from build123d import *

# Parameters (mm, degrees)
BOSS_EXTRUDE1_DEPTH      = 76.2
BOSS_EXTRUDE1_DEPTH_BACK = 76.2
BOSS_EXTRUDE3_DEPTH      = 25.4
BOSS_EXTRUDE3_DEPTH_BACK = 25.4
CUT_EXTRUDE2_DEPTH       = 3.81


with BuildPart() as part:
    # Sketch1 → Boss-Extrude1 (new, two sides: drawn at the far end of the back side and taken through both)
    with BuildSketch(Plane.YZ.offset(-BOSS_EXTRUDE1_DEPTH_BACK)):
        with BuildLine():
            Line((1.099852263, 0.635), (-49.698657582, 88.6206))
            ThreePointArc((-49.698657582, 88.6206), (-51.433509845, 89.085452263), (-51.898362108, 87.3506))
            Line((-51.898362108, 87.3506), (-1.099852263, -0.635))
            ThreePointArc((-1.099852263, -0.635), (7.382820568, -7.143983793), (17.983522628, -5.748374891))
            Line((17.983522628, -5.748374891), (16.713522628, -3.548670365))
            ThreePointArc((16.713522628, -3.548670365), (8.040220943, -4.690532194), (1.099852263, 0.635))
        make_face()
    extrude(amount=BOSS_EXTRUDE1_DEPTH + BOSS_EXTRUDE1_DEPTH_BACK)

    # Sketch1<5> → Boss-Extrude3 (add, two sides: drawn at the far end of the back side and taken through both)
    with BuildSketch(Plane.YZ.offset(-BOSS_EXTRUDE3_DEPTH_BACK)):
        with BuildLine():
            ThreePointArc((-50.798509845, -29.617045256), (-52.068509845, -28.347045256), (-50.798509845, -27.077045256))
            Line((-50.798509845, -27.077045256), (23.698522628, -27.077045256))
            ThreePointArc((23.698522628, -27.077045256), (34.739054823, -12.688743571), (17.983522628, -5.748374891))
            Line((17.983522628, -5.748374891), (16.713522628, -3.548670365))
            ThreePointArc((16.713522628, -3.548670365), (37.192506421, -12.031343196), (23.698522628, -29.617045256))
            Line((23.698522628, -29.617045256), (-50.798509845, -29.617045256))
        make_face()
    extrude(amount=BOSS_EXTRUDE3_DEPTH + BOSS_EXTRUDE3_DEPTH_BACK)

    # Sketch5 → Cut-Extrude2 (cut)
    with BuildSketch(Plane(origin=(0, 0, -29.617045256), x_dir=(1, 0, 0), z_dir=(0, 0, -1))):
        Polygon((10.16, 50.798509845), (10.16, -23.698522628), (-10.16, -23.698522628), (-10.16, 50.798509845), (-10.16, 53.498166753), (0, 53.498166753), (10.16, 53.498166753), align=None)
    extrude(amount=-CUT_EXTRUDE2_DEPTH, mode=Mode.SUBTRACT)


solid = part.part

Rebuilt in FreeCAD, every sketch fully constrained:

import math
import FreeCAD as App
import Part
import Sketcher
from FreeCAD import Vector
Q = App.Units.Quantity


def add_polygon(sketch, points):
    """Adds a closed chain of lines whose ends are joined by coincident constraints."""
    first, n = sketch.GeometryCount, len(points)
    for a, b in zip(points, points[1:] + points[:1]):
        sketch.addGeometry(Part.LineSegment(App.Vector(*a, 0), App.Vector(*b, 0)), False)
    for i in range(n):
        sketch.addConstraint(Sketcher.Constraint("Coincident", first + i, 2, first + (i + 1) % n, 1))

doc = App.newDocument("Part")
body = doc.addObject("PartDesign::Body", "Body")

sketch1 = doc.addObject("Sketcher::SketchObject", "Sketch")
body.addObject(sketch1)
sketch1.AttachmentSupport = (doc.YZ_Plane, [""])
sketch1.MapMode = "FlatFace"
sketch1.addGeometry(Part.LineSegment(Vector(1.099852, 0.635, 0), Vector(-49.698658, 88.6206, 0)), False)
sketch1.addGeometry(Part.ArcOfCircle(Part.Circle(Vector(-50.79851, 87.9856, 0), Vector(0, 0, 1), 1.27), math.radians(30), math.radians(210)), False)
sketch1.addGeometry(Part.LineSegment(Vector(-51.898362, 87.3506, 0), Vector(-1.099852, -0.635, 0)), False)
sketch1.addGeometry(Part.ArcOfCircle(Part.Circle(Vector(10.998523, 6.35, 0), Vector(0, 0, 1), 13.97), math.radians(-150), math.radians(-60)), False)
sketch1.addGeometry(Part.LineSegment(Vector(17.983523, -5.748375, 0), Vector(16.713523, -3.54867, 0)), False)
sketch1.addGeometry(Part.ArcOfCircle(Part.Circle(Vector(10.998523, 6.35, 0), Vector(0, 0, 1), 11.43), math.radians(-150), math.radians(-60)), False)
sketch1.addConstraint(Sketcher.Constraint("Tangent", 0, 2, 1, 1))
sketch1.addConstraint(Sketcher.Constraint("Tangent", 1, 2, 2, 1))
sketch1.addConstraint(Sketcher.Constraint("Tangent", 2, 2, 3, 1))
sketch1.addConstraint(Sketcher.Constraint("Coincident", 3, 2, 4, 1))
sketch1.addConstraint(Sketcher.Constraint("Coincident", 4, 2, 5, 2))
sketch1.addConstraint(Sketcher.Constraint("Tangent", 5, 1, 0, 1))
sketch1.addConstraint(Sketcher.Constraint("Coincident", 5, 3, 3, 3))
sketch1.addConstraint(Sketcher.Constraint("Symmetric", 2, 2, 5, 1, -1, 1))
sketch1.addConstraint(Sketcher.Constraint("Parallel", 0, 2))
sketch1.addConstraint(Sketcher.Constraint("Parallel", 2, 4))
sketch1.addConstraint(Sketcher.Constraint("Radius", 1, Q("0.05 in")))
sketch1.addConstraint(Sketcher.Constraint("Radius", 3, Q("0.55 in")))
sketch1.addConstraint(Sketcher.Constraint("Angle", 0, Q("120 deg")))
sketch1.addConstraint(Sketcher.Constraint("DistanceY", -1, 1, 1, 3, Q("3.464 in")))
sketch1.addConstraint(Sketcher.Constraint("DistanceX", 3, 3, 3, 2, Q("0.275 in")))
pad1 = doc.addObject("PartDesign::Pad", "Pad")
body.addObject(pad1)
pad1.Profile = sketch1
pad1.Type = "TwoLengths"
pad1.Length = Q("3 in")
pad1.Length2 = Q("3 in")

sketch2 = doc.addObject("Sketcher::SketchObject", "Sketch001")
body.addObject(sketch2)
sketch2.AttachmentSupport = (doc.YZ_Plane, [""])
sketch2.MapMode = "FlatFace"
sketch2.addGeometry(Part.ArcOfCircle(Part.Circle(Vector(-50.79851, -28.347045, 0), Vector(0, 0, 1), 1.27), math.radians(90), math.radians(270)), False)
sketch2.addGeometry(Part.LineSegment(Vector(-50.79851, -29.617045, 0), Vector(23.698523, -29.617045, 0)), False)
sketch2.addGeometry(Part.ArcOfCircle(Part.Circle(Vector(23.698523, -15.647045, 0), Vector(0, 0, 1), 13.97), math.radians(-90), math.radians(120)), False)
sketch2.addGeometry(Part.LineSegment(Vector(16.713523, -3.54867, 0), Vector(17.983523, -5.748375, 0)), False)
sketch2.addGeometry(Part.ArcOfCircle(Part.Circle(Vector(23.698523, -15.647045, 0), Vector(0, 0, 1), 11.43), math.radians(-90), math.radians(120)), False)
sketch2.addGeometry(Part.LineSegment(Vector(23.698523, -27.077045, 0), Vector(-50.79851, -27.077045, 0)), False)
sketch2.addConstraint(Sketcher.Constraint("Tangent", 0, 2, 1, 1))
sketch2.addConstraint(Sketcher.Constraint("Tangent", 1, 2, 2, 1))
sketch2.addConstraint(Sketcher.Constraint("Coincident", 2, 2, 3, 1))
sketch2.addConstraint(Sketcher.Constraint("Coincident", 3, 2, 4, 2))
sketch2.addConstraint(Sketcher.Constraint("Tangent", 4, 1, 5, 1))
sketch2.addConstraint(Sketcher.Constraint("Tangent", 5, 2, 0, 1))
sketch2.addConstraint(Sketcher.Constraint("Horizontal", 1))
sketch2.addConstraint(Sketcher.Constraint("Horizontal", 5))
sketch2.addConstraint(Sketcher.Constraint("Coincident", 4, 3, 2, 3))
sketch2.addConstraint(Sketcher.Constraint("Radius", 0, Q("0.05 in")))
sketch2.addConstraint(Sketcher.Constraint("Radius", 2, Q("0.55 in")))
sketch2.addConstraint(Sketcher.Constraint("Angle", 3, Q("-60 deg")))
sketch2.addConstraint(Sketcher.Constraint("DistanceX", 2, 2, 2, 3, Q("0.275 in")))
sketch2.addConstraint(Sketcher.Constraint("DistanceX", 1, 1, 1, 2, 74.497032))
sketch2.addConstraint(Sketcher.Constraint("DistanceX", 0, 3, -1, 1, 50.79851))
sketch2.addConstraint(Sketcher.Constraint("DistanceY", 2, 2, -1, 1, 3.54867))
pad2 = doc.addObject("PartDesign::Pad", "Pad001")
body.addObject(pad2)
pad2.Profile = sketch2
pad2.Type = "TwoLengths"
pad2.Length = Q("1 in")
pad2.Length2 = Q("1 in")

sketch3 = doc.addObject("Sketcher::SketchObject", "Sketch002")
body.addObject(sketch3)
sketch3.AttachmentSupport = (doc.XY_Plane, [""])
sketch3.MapMode = "FlatFace"
sketch3.AttachmentOffset = App.Placement(Vector(0, 0, -29.617045), App.Rotation())
add_polygon(sketch3, [(10.16, 23.698523), (10.16, -53.498167), (-10.16, -53.498167), (-10.16, 23.698523)])
sketch3.addConstraint(Sketcher.Constraint("Vertical", 0))
sketch3.addConstraint(Sketcher.Constraint("Horizontal", 1))
sketch3.addConstraint(Sketcher.Constraint("Vertical", 2))
sketch3.addConstraint(Sketcher.Constraint("Horizontal", 3))
sketch3.addConstraint(Sketcher.Constraint("DistanceX", 1, 2, 1, 1, Q("0.8 in")))
sketch3.addConstraint(Sketcher.Constraint("DistanceX", -1, 1, 0, 2, Q("0.4 in")))
sketch3.addConstraint(Sketcher.Constraint("DistanceY", 0, 2, 0, 1, 77.196689))
sketch3.addConstraint(Sketcher.Constraint("DistanceY", 0, 2, -1, 1, 53.498167))
pocket1 = doc.addObject("PartDesign::Pocket", "Pocket")
body.addObject(pocket1)
pocket1.Profile = sketch3
pocket1.Length = Q("0.15 in")
pocket1.Reversed = True

doc.recompute()
